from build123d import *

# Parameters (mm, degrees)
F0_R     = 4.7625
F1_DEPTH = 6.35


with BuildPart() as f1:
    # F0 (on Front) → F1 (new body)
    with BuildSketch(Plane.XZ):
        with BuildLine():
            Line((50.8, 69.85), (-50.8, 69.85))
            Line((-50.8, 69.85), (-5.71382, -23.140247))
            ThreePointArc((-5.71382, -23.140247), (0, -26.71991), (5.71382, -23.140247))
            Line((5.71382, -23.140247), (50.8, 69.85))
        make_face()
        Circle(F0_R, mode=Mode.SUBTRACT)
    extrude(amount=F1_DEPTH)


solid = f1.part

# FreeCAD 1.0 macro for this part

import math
import FreeCAD as App
import Part
import Sketcher
Q = App.Units.Quantity

doc = App.newDocument("Part")
body = doc.addObject("PartDesign::Body", "Body")

# Sketch on XZ plane
sketch1 = body.newObject("Sketcher::SketchObject", "Sketch")
sketch1.AttachmentSupport = (doc.getObject("XZ_Plane"), [""])
sketch1.MapMode = "FlatFace"
sketch1.addGeometry([
    Part.LineSegment(App.Vector(50.8, 69.8, 0), App.Vector(-50.8, 69.8, 0)),  # 0
    Part.LineSegment(App.Vector(-50.8, 69.8, 0), App.Vector(-5.7, -23.1, 0)),  # 1
    Part.ArcOfCircle(Part.Circle(App.Vector(0, -20.4, 0), App.Vector(0, 0, 1), 6.4), math.radians(-154), math.radians(-26)),  # 2
    Part.LineSegment(App.Vector(5.7, -23.1, 0), App.Vector(50.8, 69.8, 0)),  # 3
    Part.Circle(App.Vector(0, 0, 0), App.Vector(0, 0, 1), 4.8),  # 4
], False)
sketch1.addConstraint([
    Sketcher.Constraint("Coincident", 0, 2, 1, 1),
    Sketcher.Constraint("Tangent", 1, 2, 2, 1),
    Sketcher.Constraint("Tangent", 2, 2, 3, 1),
    Sketcher.Constraint("Coincident", 3, 2, 0, 1),
    Sketcher.Constraint("Horizontal", 0),
    Sketcher.Constraint("Coincident", 4, 3, -1, 1),
    Sketcher.Constraint("Symmetric", 1, 2, 2, 2, -2),
    Sketcher.Constraint("DistanceX", 0, 2, 0, 1, Q("4 in")),
    Sketcher.Constraint("Radius", 2, Q("0.25 in")),
    Sketcher.Constraint("Diameter", 4, Q("0.375 in")),
    Sketcher.Constraint("DistanceY", -1, 1, 0, 2, Q("2.75 in")),
    Sketcher.Constraint("Distance", 1, 103.343842),
])
pad1 = body.newObject("PartDesign::Pad", "Pad")
pad1.Profile = sketch1
pad1.Length = Q("0.25 in")

doc.recompute()
